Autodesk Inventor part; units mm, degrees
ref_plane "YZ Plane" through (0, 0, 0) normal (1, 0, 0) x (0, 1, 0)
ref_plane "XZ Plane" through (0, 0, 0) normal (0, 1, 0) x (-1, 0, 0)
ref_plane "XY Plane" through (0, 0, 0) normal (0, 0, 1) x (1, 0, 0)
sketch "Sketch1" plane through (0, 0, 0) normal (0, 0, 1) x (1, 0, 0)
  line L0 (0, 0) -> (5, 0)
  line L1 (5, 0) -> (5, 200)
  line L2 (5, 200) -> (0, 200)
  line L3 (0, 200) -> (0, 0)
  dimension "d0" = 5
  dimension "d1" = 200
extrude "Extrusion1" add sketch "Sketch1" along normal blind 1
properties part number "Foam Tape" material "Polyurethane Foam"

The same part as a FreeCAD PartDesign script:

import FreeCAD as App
import Part
import Sketcher

V = App.Vector

doc = App.newDocument("Part")
body = doc.addObject("PartDesign::Body", "Body")

# Sketch on XY plane
sketch1 = body.newObject("Sketcher::SketchObject", "Sketch")
sketch1.AttachmentSupport = (doc.getObject("XY_Plane"), [""])
sketch1.MapMode = "FlatFace"
sketch1.addGeometry(Part.LineSegment(V(0, 200, 0), V(0, 0, 0)), False)
sketch1.addGeometry(Part.LineSegment(V(0, 0, 0), V(5, 0, 0)), False)
sketch1.addGeometry(Part.LineSegment(V(5, 0, 0), V(5, 200, 0)), False)
sketch1.addGeometry(Part.LineSegment(V(5, 200, 0), V(0, 200, 0)), False)
sketch1.addConstraint(Sketcher.Constraint("Coincident", 0, 2, 1, 1))
sketch1.addConstraint(Sketcher.Constraint("Coincident", 1, 2, 2, 1))
sketch1.addConstraint(Sketcher.Constraint("Coincident", 2, 2, 3, 1))
sketch1.addConstraint(Sketcher.Constraint("Coincident", 3, 2, 0, 1))
sketch1.addConstraint(Sketcher.Constraint("Vertical", 0))
sketch1.addConstraint(Sketcher.Constraint("Horizontal", 1))
sketch1.addConstraint(Sketcher.Constraint("Vertical", 2))
sketch1.addConstraint(Sketcher.Constraint("Horizontal", 3))
sketch1.addConstraint(Sketcher.Constraint("Coincident", 0, 2, -1, 1))
sketch1.addConstraint(Sketcher.Constraint("DistanceX", 1, 1, 1, 2, 5.0))
sketch1.addConstraint(Sketcher.Constraint("DistanceY", 0, 2, 0, 1, 200.0))
pad1 = body.newObject("PartDesign::Pad", "Pad")
pad1.Profile = sketch1
pad1.Length = 1

doc.recompute()
